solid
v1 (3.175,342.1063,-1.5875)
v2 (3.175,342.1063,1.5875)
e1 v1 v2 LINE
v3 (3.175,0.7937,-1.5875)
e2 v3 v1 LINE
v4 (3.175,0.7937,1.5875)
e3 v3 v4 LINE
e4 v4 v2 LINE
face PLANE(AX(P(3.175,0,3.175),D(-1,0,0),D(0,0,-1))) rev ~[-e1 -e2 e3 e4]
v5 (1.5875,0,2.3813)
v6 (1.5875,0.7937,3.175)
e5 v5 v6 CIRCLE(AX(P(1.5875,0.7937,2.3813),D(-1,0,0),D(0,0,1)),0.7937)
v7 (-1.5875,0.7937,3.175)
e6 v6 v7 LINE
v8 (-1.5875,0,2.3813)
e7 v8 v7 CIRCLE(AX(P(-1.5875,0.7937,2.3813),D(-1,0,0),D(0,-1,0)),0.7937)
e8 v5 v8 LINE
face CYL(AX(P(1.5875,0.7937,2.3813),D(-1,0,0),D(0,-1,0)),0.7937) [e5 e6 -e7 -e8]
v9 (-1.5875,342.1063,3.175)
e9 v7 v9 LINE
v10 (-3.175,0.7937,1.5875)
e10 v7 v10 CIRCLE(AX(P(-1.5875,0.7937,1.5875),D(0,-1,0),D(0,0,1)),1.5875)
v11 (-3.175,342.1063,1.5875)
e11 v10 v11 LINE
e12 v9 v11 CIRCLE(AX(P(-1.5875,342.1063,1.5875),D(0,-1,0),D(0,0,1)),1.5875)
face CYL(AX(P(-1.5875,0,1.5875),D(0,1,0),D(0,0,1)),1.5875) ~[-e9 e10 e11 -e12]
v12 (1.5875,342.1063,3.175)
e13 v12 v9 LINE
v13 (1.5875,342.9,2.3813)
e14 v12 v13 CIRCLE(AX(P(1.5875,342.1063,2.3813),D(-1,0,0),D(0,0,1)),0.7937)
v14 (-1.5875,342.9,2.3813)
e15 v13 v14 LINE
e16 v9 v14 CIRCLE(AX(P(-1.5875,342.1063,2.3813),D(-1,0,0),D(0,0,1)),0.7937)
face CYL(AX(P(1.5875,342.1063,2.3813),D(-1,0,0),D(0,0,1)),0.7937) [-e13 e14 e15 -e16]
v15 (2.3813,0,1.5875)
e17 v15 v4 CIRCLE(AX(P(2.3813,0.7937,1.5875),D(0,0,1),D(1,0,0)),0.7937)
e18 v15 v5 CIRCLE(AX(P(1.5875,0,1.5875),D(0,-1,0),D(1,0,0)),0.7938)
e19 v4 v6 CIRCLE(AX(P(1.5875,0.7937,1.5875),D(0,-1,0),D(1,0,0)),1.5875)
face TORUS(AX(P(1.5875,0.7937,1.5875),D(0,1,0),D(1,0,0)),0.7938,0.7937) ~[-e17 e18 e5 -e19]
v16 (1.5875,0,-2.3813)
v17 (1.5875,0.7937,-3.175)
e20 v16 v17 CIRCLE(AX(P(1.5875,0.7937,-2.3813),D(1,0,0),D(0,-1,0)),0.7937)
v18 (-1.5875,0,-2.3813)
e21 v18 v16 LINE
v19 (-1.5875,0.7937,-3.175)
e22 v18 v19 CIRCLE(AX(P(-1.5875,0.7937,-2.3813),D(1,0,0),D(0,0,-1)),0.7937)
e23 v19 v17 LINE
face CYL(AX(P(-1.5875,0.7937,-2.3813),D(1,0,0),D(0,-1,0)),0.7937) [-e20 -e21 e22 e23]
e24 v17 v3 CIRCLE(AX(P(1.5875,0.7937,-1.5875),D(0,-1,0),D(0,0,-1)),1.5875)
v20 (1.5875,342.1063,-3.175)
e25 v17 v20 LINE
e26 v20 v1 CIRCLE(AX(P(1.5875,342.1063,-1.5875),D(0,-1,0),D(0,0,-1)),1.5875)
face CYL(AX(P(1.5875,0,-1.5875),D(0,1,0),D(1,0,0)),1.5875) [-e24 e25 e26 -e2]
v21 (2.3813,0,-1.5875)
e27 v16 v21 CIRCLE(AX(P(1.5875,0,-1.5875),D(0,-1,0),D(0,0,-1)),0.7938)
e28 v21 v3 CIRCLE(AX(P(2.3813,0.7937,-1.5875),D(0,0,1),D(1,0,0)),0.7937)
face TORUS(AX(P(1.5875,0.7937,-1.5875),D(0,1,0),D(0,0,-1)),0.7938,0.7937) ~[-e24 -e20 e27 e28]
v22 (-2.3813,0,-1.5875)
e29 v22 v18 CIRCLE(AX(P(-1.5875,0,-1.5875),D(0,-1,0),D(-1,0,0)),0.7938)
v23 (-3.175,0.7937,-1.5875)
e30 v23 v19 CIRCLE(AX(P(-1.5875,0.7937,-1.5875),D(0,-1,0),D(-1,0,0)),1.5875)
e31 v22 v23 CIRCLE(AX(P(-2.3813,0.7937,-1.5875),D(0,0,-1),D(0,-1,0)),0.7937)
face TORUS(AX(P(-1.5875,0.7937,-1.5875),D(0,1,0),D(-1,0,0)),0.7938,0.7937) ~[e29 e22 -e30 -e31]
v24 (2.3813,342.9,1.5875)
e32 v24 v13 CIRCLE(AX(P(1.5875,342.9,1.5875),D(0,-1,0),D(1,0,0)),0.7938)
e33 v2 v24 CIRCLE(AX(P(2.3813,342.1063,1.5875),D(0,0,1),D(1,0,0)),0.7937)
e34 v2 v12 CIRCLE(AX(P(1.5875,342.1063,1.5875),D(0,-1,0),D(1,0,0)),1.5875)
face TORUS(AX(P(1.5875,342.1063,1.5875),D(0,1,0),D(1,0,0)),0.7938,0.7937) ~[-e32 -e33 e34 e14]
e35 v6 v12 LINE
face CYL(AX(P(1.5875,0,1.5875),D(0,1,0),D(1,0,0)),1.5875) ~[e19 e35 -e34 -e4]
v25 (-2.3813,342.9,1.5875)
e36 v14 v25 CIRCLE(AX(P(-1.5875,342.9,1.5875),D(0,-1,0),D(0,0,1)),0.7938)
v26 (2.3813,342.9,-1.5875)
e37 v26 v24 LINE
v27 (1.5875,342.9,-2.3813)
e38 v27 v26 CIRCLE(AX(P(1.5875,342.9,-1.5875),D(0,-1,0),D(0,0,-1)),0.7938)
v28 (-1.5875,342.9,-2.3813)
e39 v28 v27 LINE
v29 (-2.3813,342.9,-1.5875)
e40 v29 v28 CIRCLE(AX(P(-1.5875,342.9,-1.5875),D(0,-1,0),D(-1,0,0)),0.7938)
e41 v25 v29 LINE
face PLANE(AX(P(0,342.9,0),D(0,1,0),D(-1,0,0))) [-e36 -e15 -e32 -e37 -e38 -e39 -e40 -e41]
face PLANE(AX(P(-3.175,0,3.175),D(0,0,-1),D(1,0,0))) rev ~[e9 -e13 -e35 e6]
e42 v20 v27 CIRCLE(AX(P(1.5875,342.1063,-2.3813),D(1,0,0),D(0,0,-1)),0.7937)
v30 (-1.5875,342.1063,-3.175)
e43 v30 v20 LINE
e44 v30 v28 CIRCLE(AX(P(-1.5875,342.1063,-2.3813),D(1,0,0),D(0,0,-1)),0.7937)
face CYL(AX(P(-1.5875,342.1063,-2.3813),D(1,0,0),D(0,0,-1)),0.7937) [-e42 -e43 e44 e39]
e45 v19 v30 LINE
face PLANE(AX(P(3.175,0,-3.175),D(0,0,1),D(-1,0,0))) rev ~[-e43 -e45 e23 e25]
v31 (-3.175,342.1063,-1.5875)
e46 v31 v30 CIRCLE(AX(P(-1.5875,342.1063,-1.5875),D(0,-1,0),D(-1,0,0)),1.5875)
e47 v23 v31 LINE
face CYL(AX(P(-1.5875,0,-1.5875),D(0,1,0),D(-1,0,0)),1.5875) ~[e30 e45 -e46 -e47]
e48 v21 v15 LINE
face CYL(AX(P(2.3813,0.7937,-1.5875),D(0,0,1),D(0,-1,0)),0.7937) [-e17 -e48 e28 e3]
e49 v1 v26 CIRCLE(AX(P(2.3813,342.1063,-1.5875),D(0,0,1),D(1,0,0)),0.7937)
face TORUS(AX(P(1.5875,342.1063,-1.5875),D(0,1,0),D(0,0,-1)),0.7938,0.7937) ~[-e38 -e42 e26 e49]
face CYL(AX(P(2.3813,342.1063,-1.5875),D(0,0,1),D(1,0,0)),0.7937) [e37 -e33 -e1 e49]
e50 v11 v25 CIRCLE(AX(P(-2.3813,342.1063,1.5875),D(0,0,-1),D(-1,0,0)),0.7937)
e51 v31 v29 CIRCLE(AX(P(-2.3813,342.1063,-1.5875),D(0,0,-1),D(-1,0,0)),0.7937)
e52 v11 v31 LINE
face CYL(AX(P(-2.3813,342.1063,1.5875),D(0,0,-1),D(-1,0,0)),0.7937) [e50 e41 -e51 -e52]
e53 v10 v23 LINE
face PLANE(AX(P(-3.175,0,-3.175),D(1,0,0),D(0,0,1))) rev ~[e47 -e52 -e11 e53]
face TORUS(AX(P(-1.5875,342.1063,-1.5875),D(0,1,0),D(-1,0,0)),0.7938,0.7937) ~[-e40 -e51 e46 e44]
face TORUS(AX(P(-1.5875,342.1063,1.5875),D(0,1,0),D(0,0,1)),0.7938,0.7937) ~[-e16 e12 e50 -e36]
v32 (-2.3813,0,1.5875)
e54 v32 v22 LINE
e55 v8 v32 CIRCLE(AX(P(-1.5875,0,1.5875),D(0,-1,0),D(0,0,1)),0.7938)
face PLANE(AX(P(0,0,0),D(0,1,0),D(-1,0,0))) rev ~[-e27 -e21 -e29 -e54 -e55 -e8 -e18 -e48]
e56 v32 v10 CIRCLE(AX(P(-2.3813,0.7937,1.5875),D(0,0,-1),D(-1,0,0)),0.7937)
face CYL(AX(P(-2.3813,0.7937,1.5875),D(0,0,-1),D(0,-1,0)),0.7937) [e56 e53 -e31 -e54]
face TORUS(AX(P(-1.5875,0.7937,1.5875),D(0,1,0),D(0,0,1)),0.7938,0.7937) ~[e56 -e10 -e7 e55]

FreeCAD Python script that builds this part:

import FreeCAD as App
import Part
import Sketcher
from FreeCAD import Vector
Q = App.Units.Quantity


def edges_at(feature, points):
    """Names of the edges that pass closest to the given points."""
    edges = feature.Shape.Edges
    near = lambda p: min(range(len(edges)), key=lambda i: edges[i].distToShape(Part.Vertex(*p))[0])
    return sorted({f"Edge{near(p) + 1}" for p in points})


def add_polygon(sketch, points):
    """Adds a closed chain of lines whose ends are joined by coincident constraints."""
    first, n = sketch.GeometryCount, len(points)
    for a, b in zip(points, points[1:] + points[:1]):
        sketch.addGeometry(Part.LineSegment(App.Vector(*a, 0), App.Vector(*b, 0)), False)
    for i in range(n):
        sketch.addConstraint(Sketcher.Constraint("Coincident", first + i, 2, first + (i + 1) % n, 1))

doc = App.newDocument("Part")
body = doc.addObject("PartDesign::Body", "Body")

sketch1 = doc.addObject("Sketcher::SketchObject", "Sketch")
body.addObject(sketch1)
sketch1.AttachmentSupport = (doc.XZ_Plane, [""])
sketch1.MapMode = "FlatFace"
add_polygon(sketch1, [(3, 3), (3, -3), (-3, -3), (-3, 3)])
sketch1.addConstraint([
    Sketcher.Constraint("Vertical", 0),
    Sketcher.Constraint("Horizontal", 1),
    Sketcher.Constraint("Vertical", 2),
    Sketcher.Constraint("Horizontal", 3),
    Sketcher.Constraint("Symmetric", 0, 2, 2, 2, -1, 1),
    Sketcher.Constraint("Equal", 3, 0),
    Sketcher.Constraint("DistanceX", 1, 2, 1, 1, Q("0.25 in")),
])
pad1 = doc.addObject("PartDesign::Pad", "Pad")
body.addObject(pad1)
pad1.Profile = sketch1
pad1.Length = Q("13.5 in")
pad1.Reversed = True
doc.recompute()

fillet = doc.addObject("PartDesign::Fillet", "Fillet")
body.addObject(fillet)
fillet.Base = (pad1, edges_at(pad1, [
    (3.175, 171.45, 3.175),
    (3.175, 171.45, -3.175),
    (-3.175, 171.45, 3.175),
    (-3.175, 171.45, -3.175),
]))
fillet.Radius = Q("0.0625 in")
doc.recompute()

fillet2 = doc.addObject("PartDesign::Fillet", "Fillet001")
body.addObject(fillet2)
fillet2.Base = (fillet, edges_at(fillet, [
    (2.71, 0, 2.71),
    (3.175, 0, 0),
    (2.71, 0, -2.71),
    (0, 0, -3.175),
    (-2.71, 0, -2.71),
    (-3.175, 0, 0),
    (-2.71, 0, 2.71),
    (0, 0, 3.175),
    (2.71, 342.9, 2.71),
    (3.175, 342.9, 0),
    (2.71, 342.9, -2.71),
    (0, 342.9, -3.175),
    (-2.71, 342.9, -2.71),
    (-3.175, 342.9, 0),
    (-2.71, 342.9, 2.71),
    (0, 342.9, 3.175),
]))
fillet2.Radius = Q("0.031248 in")

doc.recompute()
